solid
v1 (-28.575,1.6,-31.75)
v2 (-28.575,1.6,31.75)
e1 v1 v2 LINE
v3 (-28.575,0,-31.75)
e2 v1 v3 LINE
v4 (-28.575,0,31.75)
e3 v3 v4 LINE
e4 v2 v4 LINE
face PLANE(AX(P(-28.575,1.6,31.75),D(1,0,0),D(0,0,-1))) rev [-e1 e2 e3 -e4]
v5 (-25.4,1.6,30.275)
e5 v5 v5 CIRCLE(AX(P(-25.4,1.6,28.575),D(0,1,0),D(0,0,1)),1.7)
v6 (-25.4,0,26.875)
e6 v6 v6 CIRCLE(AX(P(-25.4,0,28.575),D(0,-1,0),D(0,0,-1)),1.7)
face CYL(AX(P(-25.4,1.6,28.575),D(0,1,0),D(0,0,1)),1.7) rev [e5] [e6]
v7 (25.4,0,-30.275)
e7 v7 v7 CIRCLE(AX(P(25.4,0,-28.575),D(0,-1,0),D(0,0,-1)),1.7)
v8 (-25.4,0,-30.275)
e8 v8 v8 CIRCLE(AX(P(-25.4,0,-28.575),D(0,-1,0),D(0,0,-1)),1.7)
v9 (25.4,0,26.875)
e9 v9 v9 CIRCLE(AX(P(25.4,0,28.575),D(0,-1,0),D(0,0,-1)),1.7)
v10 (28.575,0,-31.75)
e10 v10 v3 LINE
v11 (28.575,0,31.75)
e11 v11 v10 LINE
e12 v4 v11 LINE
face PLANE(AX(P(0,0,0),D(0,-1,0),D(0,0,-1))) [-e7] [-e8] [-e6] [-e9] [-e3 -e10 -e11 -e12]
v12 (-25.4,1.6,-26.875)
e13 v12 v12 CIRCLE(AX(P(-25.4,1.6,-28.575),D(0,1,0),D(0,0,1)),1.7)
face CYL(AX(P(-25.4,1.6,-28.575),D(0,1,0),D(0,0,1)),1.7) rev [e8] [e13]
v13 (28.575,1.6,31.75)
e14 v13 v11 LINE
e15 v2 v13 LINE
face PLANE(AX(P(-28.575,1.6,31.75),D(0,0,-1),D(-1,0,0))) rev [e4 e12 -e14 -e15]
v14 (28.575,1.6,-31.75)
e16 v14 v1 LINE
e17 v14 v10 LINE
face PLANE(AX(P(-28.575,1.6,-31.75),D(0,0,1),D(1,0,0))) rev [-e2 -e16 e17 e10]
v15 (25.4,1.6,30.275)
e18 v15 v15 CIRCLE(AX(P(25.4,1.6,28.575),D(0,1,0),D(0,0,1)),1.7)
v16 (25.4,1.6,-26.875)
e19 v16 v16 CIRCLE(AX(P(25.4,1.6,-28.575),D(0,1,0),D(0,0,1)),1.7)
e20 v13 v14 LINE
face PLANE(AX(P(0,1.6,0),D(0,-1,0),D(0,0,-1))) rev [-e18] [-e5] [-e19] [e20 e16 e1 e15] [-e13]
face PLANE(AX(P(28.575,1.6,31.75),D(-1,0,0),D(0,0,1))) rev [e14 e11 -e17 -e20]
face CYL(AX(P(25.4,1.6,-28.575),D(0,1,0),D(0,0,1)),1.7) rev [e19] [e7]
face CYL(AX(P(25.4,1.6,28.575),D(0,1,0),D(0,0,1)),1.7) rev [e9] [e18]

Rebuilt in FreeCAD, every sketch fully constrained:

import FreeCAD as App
import Part
import Sketcher
from FreeCAD import Vector
Q = App.Units.Quantity


def add_polygon(sketch, points):
    """Adds a closed chain of lines whose ends are joined by coincident constraints."""
    first, n = sketch.GeometryCount, len(points)
    for a, b in zip(points, points[1:] + points[:1]):
        sketch.addGeometry(Part.LineSegment(App.Vector(*a, 0), App.Vector(*b, 0)), False)
    for i in range(n):
        sketch.addConstraint(Sketcher.Constraint("Coincident", first + i, 2, first + (i + 1) % n, 1))

doc = App.newDocument("Part")
params = doc.addObject("Spreadsheet::Sheet", "Params")
for row, (alias, value) in enumerate([
    ("sketch1_height", "63.5 mm"),
    ("sketch1_width", "57.15 mm"),
    ("pad1_length", "1.6 mm"),
    ("sketch2_diameter", "3.4 mm"),
    ("hole_diameter", "3.4 mm"),
    ("hole_depth", "50 mm"),
], start=1):
    params.set(f"A{row}", alias)
    params.set(f"B{row}", "=" + value)
    params.setAlias(f"B{row}", alias)

body = doc.addObject("PartDesign::Body", "Body")

# Sketch on XZ plane
sketch1 = body.newObject("Sketcher::SketchObject", "Sketch")
sketch1.AttachmentSupport = (doc.getObject("XZ_Plane"), [""])
sketch1.MapMode = "FlatFace"
add_polygon(sketch1, [(-28.575, -31.75), (-28.575, 31.75), (28.575, 31.75), (28.575, -31.75)])  # lines 0-3
sketch1.addConstraint([
    Sketcher.Constraint("Vertical", 0),
    Sketcher.Constraint("Horizontal", 1),
    Sketcher.Constraint("Vertical", 2),
    Sketcher.Constraint("Horizontal", 3),
    Sketcher.Constraint("Symmetric", 0, 2, 2, 2, -1, 1),
    Sketcher.Constraint("DistanceY", 0, 1, 0, 2, Q("63.5 mm")),
    Sketcher.Constraint("DistanceX", 1, 1, 1, 2, Q("57.15 mm")),
])
sketch1.setExpression("Constraints[9]", "Params.sketch1_height")
sketch1.setExpression("Constraints[10]", "Params.sketch1_width")
pad1 = body.newObject("PartDesign::Pad", "Pad")
pad1.Profile = sketch1
pad1.setExpression("Length", "Params.pad1_length")
pad1.Reversed = True

# Sketch on XZ plane
sketch2 = body.newObject("Sketcher::SketchObject", "Sketch001")
sketch2.AttachmentSupport = (doc.getObject("XZ_Plane"), [""])
sketch2.MapMode = "FlatFace"
sketch2.AttachmentOffset = App.Placement(Vector(0, 0, -1.6), App.Rotation())
sketch2.addGeometry([
    Part.Circle(Vector(-25.4, -28.575, 0), Vector(0, 0, 1), 1.7),
    Part.Circle(Vector(25.4, -28.575, 0), Vector(0, 0, 1), 1.7),
    Part.Circle(Vector(25.4, 28.575, 0), Vector(0, 0, 1), 1.7),
    Part.Circle(Vector(-25.4, 28.575, 0), Vector(0, 0, 1), 1.7),
], False)
sketch2.addConstraint([
    Sketcher.Constraint("Equal", 0, 1),
    Sketcher.Constraint("Equal", 1, 2),
    Sketcher.Constraint("Equal", 2, 3),
    Sketcher.Constraint("Symmetric", 0, 3, 2, 3, -1, 1),
    Sketcher.Constraint("Symmetric", 1, 3, 3, 3, -1, 1),
    Sketcher.Constraint("Symmetric", 0, 3, 1, 3, -2),
    Sketcher.Constraint("Diameter", 0, Q("3.4 mm")),
    Sketcher.Constraint("DistanceX", 0, 3, -1, 1, Q("25.4 mm")),
    Sketcher.Constraint("DistanceY", 1, 3, 2, 3, Q("57.15 mm")),
])
sketch2.setExpression("Constraints[6]", "Params.sketch2_diameter")
doc.recompute()
hole = body.newObject("PartDesign::Hole", "Hole")
hole.Profile = sketch2
hole.ThreadType = "None"
hole.setExpression("Diameter", "Params.hole_diameter")
hole.DepthType = "Dimension"
hole.setExpression("Depth", "Params.hole_depth")
hole.DrillPoint = "Angled"
hole.DrillPointAngle = 118
hole.Reversed = True

doc.recompute()
